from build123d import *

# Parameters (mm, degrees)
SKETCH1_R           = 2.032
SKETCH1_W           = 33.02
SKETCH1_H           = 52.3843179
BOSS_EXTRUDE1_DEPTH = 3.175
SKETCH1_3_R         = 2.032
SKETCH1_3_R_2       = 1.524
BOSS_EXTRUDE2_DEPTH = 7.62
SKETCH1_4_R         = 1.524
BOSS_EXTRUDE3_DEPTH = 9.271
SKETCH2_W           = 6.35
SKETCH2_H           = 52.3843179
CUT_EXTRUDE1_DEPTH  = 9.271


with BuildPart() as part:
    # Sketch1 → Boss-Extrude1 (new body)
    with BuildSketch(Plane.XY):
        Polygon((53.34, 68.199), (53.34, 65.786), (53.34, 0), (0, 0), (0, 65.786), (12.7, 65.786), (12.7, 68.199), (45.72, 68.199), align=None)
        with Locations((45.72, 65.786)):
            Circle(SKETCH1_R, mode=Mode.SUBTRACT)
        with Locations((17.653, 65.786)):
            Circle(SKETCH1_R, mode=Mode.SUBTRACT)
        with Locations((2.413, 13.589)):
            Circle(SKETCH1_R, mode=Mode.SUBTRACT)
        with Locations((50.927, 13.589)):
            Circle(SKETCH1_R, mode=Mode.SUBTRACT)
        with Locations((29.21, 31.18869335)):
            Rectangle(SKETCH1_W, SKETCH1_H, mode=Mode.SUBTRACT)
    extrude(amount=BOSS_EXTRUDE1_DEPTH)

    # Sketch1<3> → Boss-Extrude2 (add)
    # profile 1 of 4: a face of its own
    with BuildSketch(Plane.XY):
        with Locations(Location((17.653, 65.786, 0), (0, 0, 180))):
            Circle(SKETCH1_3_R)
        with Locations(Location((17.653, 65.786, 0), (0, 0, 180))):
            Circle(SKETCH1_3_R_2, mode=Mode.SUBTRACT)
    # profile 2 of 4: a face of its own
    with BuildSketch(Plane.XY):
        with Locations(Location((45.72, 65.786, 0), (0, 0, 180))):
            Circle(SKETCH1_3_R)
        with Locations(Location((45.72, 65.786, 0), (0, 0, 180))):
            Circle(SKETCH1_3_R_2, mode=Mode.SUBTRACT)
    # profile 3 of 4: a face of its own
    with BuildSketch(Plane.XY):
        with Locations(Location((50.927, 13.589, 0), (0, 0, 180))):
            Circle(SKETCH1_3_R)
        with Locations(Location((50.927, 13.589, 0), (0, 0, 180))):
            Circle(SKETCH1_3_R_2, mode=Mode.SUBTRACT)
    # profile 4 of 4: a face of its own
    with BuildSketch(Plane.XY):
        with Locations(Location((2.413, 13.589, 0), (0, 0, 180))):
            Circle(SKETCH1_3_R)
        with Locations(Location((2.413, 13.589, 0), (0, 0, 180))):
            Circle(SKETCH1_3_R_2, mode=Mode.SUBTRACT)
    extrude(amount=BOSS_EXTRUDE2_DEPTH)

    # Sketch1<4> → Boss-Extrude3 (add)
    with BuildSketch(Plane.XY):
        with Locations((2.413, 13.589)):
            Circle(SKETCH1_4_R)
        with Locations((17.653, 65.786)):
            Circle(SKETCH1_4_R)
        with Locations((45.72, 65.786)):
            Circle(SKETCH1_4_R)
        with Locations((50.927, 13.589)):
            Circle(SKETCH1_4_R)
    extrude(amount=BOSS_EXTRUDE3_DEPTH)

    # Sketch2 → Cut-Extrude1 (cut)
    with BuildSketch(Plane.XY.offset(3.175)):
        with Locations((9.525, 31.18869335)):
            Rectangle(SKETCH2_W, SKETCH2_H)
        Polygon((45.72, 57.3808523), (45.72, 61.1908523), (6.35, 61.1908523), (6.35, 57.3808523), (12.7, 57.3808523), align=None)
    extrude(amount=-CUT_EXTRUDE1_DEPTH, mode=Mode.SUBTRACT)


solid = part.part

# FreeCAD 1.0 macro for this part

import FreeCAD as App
import Part
import Sketcher

V = App.Vector
Q = App.Units.Quantity

doc = App.newDocument("Part")
params = doc.addObject("Spreadsheet::Sheet", "Params")
for row, (alias, value) in enumerate([
    ("sketch1_diameter", "0.16 in"),
    ("sketch1_width", "1.6 in"),
    ("sketch1_width2", "0.5 in"),
    ("sketch1_width3", "1.3 in"),
    ("sketch1_height", "2.59 in"),
    ("pad1_length", "0.125 in"),
    ("sketch2_diameter", "0.16 in"),
    ("sketch2_diameter2", "0.12 in"),
    ("pad2_length", "0.3 in"),
    ("sketch3_diameter", "0.12 in"),
    ("pad3_length", "0.365 in"),
    ("sketch4_width", "1.3 in"),
    ("sketch4_width2", "0.25 in"),
    ("sketch4_height", "0.15 in"),
    ("pocket1_length", "0.365 in"),
], start=1):
    params.set(f"A{row}", alias)
    params.set(f"B{row}", "=" + value)
    params.setAlias(f"B{row}", alias)

body = doc.addObject("PartDesign::Body", "Body")

# Sketch on XY plane
sketch1 = body.newObject("Sketcher::SketchObject", "Sketch")
sketch1.AttachmentSupport = (doc.getObject("XY_Plane"), [""])
sketch1.MapMode = "FlatFace"
sketch1.addGeometry(Part.LineSegment(V(53.3, 0, 0), V(53.3, 68.2, 0)), False)
sketch1.addGeometry(Part.LineSegment(V(53.3, 68.2, 0), V(12.7, 68.2, 0)), False)
sketch1.addGeometry(Part.LineSegment(V(12.7, 68.2, 0), V(12.7, 65.8, 0)), False)
sketch1.addGeometry(Part.LineSegment(V(12.7, 65.8, 0), V(0, 65.8, 0)), False)
sketch1.addGeometry(Part.LineSegment(V(0, 65.8, 0), V(0, 0, 0)), False)
sketch1.addGeometry(Part.LineSegment(V(0, 0, 0), V(53.3, 0, 0)), False)
sketch1.addGeometry(Part.Circle(V(50.9, 13.6, 0), V(0, 0, 1), 2), False)
sketch1.addGeometry(Part.LineSegment(V(12.7, 5, 0), V(12.7, 57.4, 0)), False)
sketch1.addGeometry(Part.LineSegment(V(12.7, 57.4, 0), V(45.7, 57.4, 0)), False)
sketch1.addGeometry(Part.LineSegment(V(45.7, 57.4, 0), V(45.7, 5, 0)), False)
sketch1.addGeometry(Part.LineSegment(V(45.7, 5, 0), V(12.7, 5, 0)), False)
sketch1.addGeometry(Part.Circle(V(2.4, 13.6, 0), V(0, 0, 1), 2), False)
sketch1.addGeometry(Part.Circle(V(45.7, 65.8, 0), V(0, 0, 1), 2), False)
sketch1.addGeometry(Part.Circle(V(17.7, 65.8, 0), V(0, 0, 1), 2), False)
sketch1.addConstraint(Sketcher.Constraint("Coincident", 0, 2, 1, 1))
sketch1.addConstraint(Sketcher.Constraint("Coincident", 1, 2, 2, 1))
sketch1.addConstraint(Sketcher.Constraint("Coincident", 2, 2, 3, 1))
sketch1.addConstraint(Sketcher.Constraint("Coincident", 3, 2, 4, 1))
sketch1.addConstraint(Sketcher.Constraint("Coincident", 4, 2, 5, 1))
sketch1.addConstraint(Sketcher.Constraint("Coincident", 5, 2, 0, 1))
sketch1.addConstraint(Sketcher.Constraint("Coincident", 7, 2, 8, 1))
sketch1.addConstraint(Sketcher.Constraint("Coincident", 8, 2, 9, 1))
sketch1.addConstraint(Sketcher.Constraint("Coincident", 9, 2, 10, 1))
sketch1.addConstraint(Sketcher.Constraint("Coincident", 10, 2, 7, 1))
sketch1.addConstraint(Sketcher.Constraint("Vertical", 0))
sketch1.addConstraint(Sketcher.Constraint("Horizontal", 1))
sketch1.addConstraint(Sketcher.Constraint("Vertical", 2))
sketch1.addConstraint(Sketcher.Constraint("Horizontal", 3))
sketch1.addConstraint(Sketcher.Constraint("Vertical", 4))
sketch1.addConstraint(Sketcher.Constraint("Horizontal", 5))
sketch1.addConstraint(Sketcher.Constraint("Vertical", 7))
sketch1.addConstraint(Sketcher.Constraint("Horizontal", 8))
sketch1.addConstraint(Sketcher.Constraint("Vertical", 9))
sketch1.addConstraint(Sketcher.Constraint("Horizontal", 10))
sketch1.addConstraint(Sketcher.Constraint("Coincident", 4, 2, -1, 1))
sketch1.addConstraint(Sketcher.Constraint("Equal", 6, 11))
sketch1.addConstraint(Sketcher.Constraint("Equal", 11, 12))
sketch1.addConstraint(Sketcher.Constraint("Equal", 12, 13))
sketch1.addConstraint(Sketcher.Constraint("Horizontal", 6, 3, 11, 3))
sketch1.addConstraint(Sketcher.Constraint("Horizontal", 12, 3, 13, 3))
sketch1.addConstraint(Sketcher.Constraint("Horizontal", 13, 3, 2, 2))
sketch1.addConstraint(Sketcher.Constraint("Vertical", 2, 2, 7, 2))
sketch1.addConstraint(Sketcher.Constraint("Vertical", 12, 3, 8, 2))
sketch1.addConstraint(Sketcher.Constraint("Diameter", 6, Q("0.16 in")))
sketch1.addConstraint(Sketcher.Constraint("DistanceX", 1, 2, 1, 1, Q("1.6 in")))
sketch1.addConstraint(Sketcher.Constraint("DistanceX", 3, 2, 3, 1, Q("0.5 in")))
sketch1.addConstraint(Sketcher.Constraint("DistanceX", 8, 1, 8, 2, Q("1.3 in")))
sketch1.addConstraint(Sketcher.Constraint("DistanceY", 4, 2, 4, 1, Q("2.59 in")))
sketch1.addConstraint(Sketcher.Constraint("DistanceX", 11, 3, 13, 3, Q("0.6 in")))
sketch1.addConstraint(Sketcher.Constraint("DistanceY", 0, 1, 0, 2, Q("2.685 in")))
sketch1.addConstraint(Sketcher.Constraint("DistanceX", 11, 3, 6, 3, Q("1.91 in")))
sketch1.addConstraint(Sketcher.Constraint("DistanceY", 6, 3, 0, 2, Q("2.15 in")))
sketch1.addConstraint(Sketcher.Constraint("DistanceX", -1, 1, 6, 3, Q("2.005 in")))
sketch1.addConstraint(Sketcher.Constraint("DistanceY", 7, 1, 7, 2, 52.384318))
sketch1.addConstraint(Sketcher.Constraint("DistanceY", -1, 1, 7, 2, 57.380852))
sketch1.setExpression("Constraints[29]", "Params.sketch1_diameter")
sketch1.setExpression("Constraints[30]", "Params.sketch1_width")
sketch1.setExpression("Constraints[31]", "Params.sketch1_width2")
sketch1.setExpression("Constraints[32]", "Params.sketch1_width3")
sketch1.setExpression("Constraints[33]", "Params.sketch1_height")
pad1 = body.newObject("PartDesign::Pad", "Pad")
pad1.Profile = sketch1
pad1.setExpression("Length", "Params.pad1_length")

# Sketch on XY plane
sketch2 = body.newObject("Sketcher::SketchObject", "Sketch001")
sketch2.AttachmentSupport = (doc.getObject("XY_Plane"), [""])
sketch2.MapMode = "FlatFace"
sketch2.addGeometry(Part.Circle(V(17.7, 65.8, 0), V(0, 0, 1), 2), False)
sketch2.addGeometry(Part.Circle(V(17.7, 65.8, 0), V(0, 0, 1), 1.5), False)
sketch2.addGeometry(Part.Circle(V(45.7, 65.8, 0), V(0, 0, 1), 2), False)
sketch2.addGeometry(Part.Circle(V(45.7, 65.8, 0), V(0, 0, 1), 1.5), False)
sketch2.addGeometry(Part.Circle(V(50.9, 13.6, 0), V(0, 0, 1), 2), False)
sketch2.addGeometry(Part.Circle(V(50.9, 13.6, 0), V(0, 0, 1), 1.5), False)
sketch2.addGeometry(Part.Circle(V(2.4, 13.6, 0), V(0, 0, 1), 2), False)
sketch2.addGeometry(Part.Circle(V(2.4, 13.6, 0), V(0, 0, 1), 1.5), False)
sketch2.addConstraint(Sketcher.Constraint("Coincident", 1, 3, 0, 3))
sketch2.addConstraint(Sketcher.Constraint("Coincident", 3, 3, 2, 3))
sketch2.addConstraint(Sketcher.Constraint("Coincident", 5, 3, 4, 3))
sketch2.addConstraint(Sketcher.Constraint("Coincident", 7, 3, 6, 3))
sketch2.addConstraint(Sketcher.Constraint("Equal", 0, 2))
sketch2.addConstraint(Sketcher.Constraint("Equal", 1, 3))
sketch2.addConstraint(Sketcher.Constraint("Equal", 2, 4))
sketch2.addConstraint(Sketcher.Constraint("Equal", 3, 5))
sketch2.addConstraint(Sketcher.Constraint("Equal", 4, 6))
sketch2.addConstraint(Sketcher.Constraint("Equal", 5, 7))
sketch2.addConstraint(Sketcher.Constraint("Horizontal", 1, 3, 2, 3))
sketch2.addConstraint(Sketcher.Constraint("Horizontal", 5, 3, 6, 3))
sketch2.addConstraint(Sketcher.Constraint("Diameter", 0, Q("0.16 in")))
sketch2.addConstraint(Sketcher.Constraint("Diameter", 1, Q("0.12 in")))
sketch2.addConstraint(Sketcher.Constraint("DistanceX", -1, 1, 2, 3, Q("1.8 in")))
sketch2.addConstraint(Sketcher.Constraint("DistanceX", 6, 3, 0, 3, Q("0.6 in")))
sketch2.addConstraint(Sketcher.Constraint("DistanceY", -1, 1, 0, 3, Q("2.59 in")))
sketch2.addConstraint(Sketcher.Constraint("DistanceX", 0, 3, 4, 3, Q("1.31 in")))
sketch2.addConstraint(Sketcher.Constraint("DistanceX", -1, 1, 0, 3, Q("0.695 in")))
sketch2.addConstraint(Sketcher.Constraint("DistanceY", -1, 1, 4, 3, Q("0.535 in")))
sketch2.setExpression("Constraints[12]", "Params.sketch2_diameter")
sketch2.setExpression("Constraints[13]", "Params.sketch2_diameter2")
pad2 = body.newObject("PartDesign::Pad", "Pad001")
pad2.Profile = sketch2
pad2.setExpression("Length", "Params.pad2_length")

# Sketch on XY plane
sketch3 = body.newObject("Sketcher::SketchObject", "Sketch002")
sketch3.AttachmentSupport = (doc.getObject("XY_Plane"), [""])
sketch3.MapMode = "FlatFace"
sketch3.addGeometry(Part.Circle(V(2.4, 13.6, 0), V(0, 0, 1), 1.5), False)
sketch3.addGeometry(Part.Circle(V(17.7, 65.8, 0), V(0, 0, 1), 1.5), False)
sketch3.addGeometry(Part.Circle(V(45.7, 65.8, 0), V(0, 0, 1), 1.5), False)
sketch3.addGeometry(Part.Circle(V(50.9, 13.6, 0), V(0, 0, 1), 1.5), False)
sketch3.addConstraint(Sketcher.Constraint("Equal", 0, 1))
sketch3.addConstraint(Sketcher.Constraint("Equal", 1, 2))
sketch3.addConstraint(Sketcher.Constraint("Equal", 2, 3))
sketch3.addConstraint(Sketcher.Constraint("Horizontal", 1, 3, 2, 3))
sketch3.addConstraint(Sketcher.Constraint("Horizontal", 0, 3, 3, 3))
sketch3.addConstraint(Sketcher.Constraint("Diameter", 0, Q("0.12 in")))
sketch3.addConstraint(Sketcher.Constraint("DistanceX", -1, 1, 2, 3, Q("1.8 in")))
sketch3.addConstraint(Sketcher.Constraint("DistanceX", 0, 3, 1, 3, Q("0.6 in")))
sketch3.addConstraint(Sketcher.Constraint("DistanceY", -1, 1, 1, 3, Q("2.59 in")))
sketch3.addConstraint(Sketcher.Constraint("DistanceX", 0, 3, 3, 3, Q("1.91 in")))
sketch3.addConstraint(Sketcher.Constraint("DistanceX", -1, 1, 0, 3, Q("0.095 in")))
sketch3.addConstraint(Sketcher.Constraint("DistanceY", -1, 1, 0, 3, Q("0.535 in")))
sketch3.setExpression("Constraints[5]", "Params.sketch3_diameter")
pad3 = body.newObject("PartDesign::Pad", "Pad002")
pad3.Profile = sketch3
pad3.setExpression("Length", "Params.pad3_length")

# Sketch on XY plane
sketch4 = body.newObject("Sketcher::SketchObject", "Sketch003")
sketch4.AttachmentSupport = (doc.getObject("XY_Plane"), [""])
sketch4.MapMode = "FlatFace"
sketch4.AttachmentOffset = App.Placement(V(0, 0, 0.125 * 25.4), App.Rotation())
sketch4.addGeometry(Part.LineSegment(V(6.3, 5, 0), V(12.7, 5, 0)), False)
sketch4.addGeometry(Part.LineSegment(V(12.7, 5, 0), V(12.7, 57.4, 0)), False)
sketch4.addGeometry(Part.LineSegment(V(12.7, 57.4, 0), V(45.7, 57.4, 0)), False)
sketch4.addGeometry(Part.LineSegment(V(45.7, 57.4, 0), V(45.7, 61.2, 0)), False)
sketch4.addGeometry(Part.LineSegment(V(45.7, 61.2, 0), V(6.3, 61.2, 0)), False)
sketch4.addGeometry(Part.LineSegment(V(6.3, 61.2, 0), V(6.3, 5, 0)), False)
sketch4.addConstraint(Sketcher.Constraint("Coincident", 0, 2, 1, 1))
sketch4.addConstraint(Sketcher.Constraint("Coincident", 1, 2, 2, 1))
sketch4.addConstraint(Sketcher.Constraint("Coincident", 2, 2, 3, 1))
sketch4.addConstraint(Sketcher.Constraint("Coincident", 3, 2, 4, 1))
sketch4.addConstraint(Sketcher.Constraint("Coincident", 4, 2, 5, 1))
sketch4.addConstraint(Sketcher.Constraint("Coincident", 5, 2, 0, 1))
sketch4.addConstraint(Sketcher.Constraint("Horizontal", 0))
sketch4.addConstraint(Sketcher.Constraint("Vertical", 1))
sketch4.addConstraint(Sketcher.Constraint("Horizontal", 2))
sketch4.addConstraint(Sketcher.Constraint("Vertical", 3))
sketch4.addConstraint(Sketcher.Constraint("Horizontal", 4))
sketch4.addConstraint(Sketcher.Constraint("Vertical", 5))
sketch4.addConstraint(Sketcher.Constraint("DistanceX", 2, 1, 2, 2, Q("1.3 in")))
sketch4.addConstraint(Sketcher.Constraint("DistanceX", 0, 1, 0, 2, Q("0.25 in")))
sketch4.addConstraint(Sketcher.Constraint("DistanceY", 3, 1, 3, 2, Q("0.15 in")))
sketch4.addConstraint(Sketcher.Constraint("DistanceX", -1, 1, 0, 2, Q("0.5 in")))
sketch4.addConstraint(Sketcher.Constraint("DistanceY", 1, 1, 1, 2, 52.384318))
sketch4.addConstraint(Sketcher.Constraint("DistanceY", -1, 1, 0, 2, 4.996534))
sketch4.setExpression("Constraints[12]", "Params.sketch4_width")
sketch4.setExpression("Constraints[13]", "Params.sketch4_width2")
sketch4.setExpression("Constraints[14]", "Params.sketch4_height")
pocket1 = body.newObject("PartDesign::Pocket", "Pocket")
pocket1.Profile = sketch4
pocket1.setExpression("Length", "Params.pocket1_length")

doc.recompute()
